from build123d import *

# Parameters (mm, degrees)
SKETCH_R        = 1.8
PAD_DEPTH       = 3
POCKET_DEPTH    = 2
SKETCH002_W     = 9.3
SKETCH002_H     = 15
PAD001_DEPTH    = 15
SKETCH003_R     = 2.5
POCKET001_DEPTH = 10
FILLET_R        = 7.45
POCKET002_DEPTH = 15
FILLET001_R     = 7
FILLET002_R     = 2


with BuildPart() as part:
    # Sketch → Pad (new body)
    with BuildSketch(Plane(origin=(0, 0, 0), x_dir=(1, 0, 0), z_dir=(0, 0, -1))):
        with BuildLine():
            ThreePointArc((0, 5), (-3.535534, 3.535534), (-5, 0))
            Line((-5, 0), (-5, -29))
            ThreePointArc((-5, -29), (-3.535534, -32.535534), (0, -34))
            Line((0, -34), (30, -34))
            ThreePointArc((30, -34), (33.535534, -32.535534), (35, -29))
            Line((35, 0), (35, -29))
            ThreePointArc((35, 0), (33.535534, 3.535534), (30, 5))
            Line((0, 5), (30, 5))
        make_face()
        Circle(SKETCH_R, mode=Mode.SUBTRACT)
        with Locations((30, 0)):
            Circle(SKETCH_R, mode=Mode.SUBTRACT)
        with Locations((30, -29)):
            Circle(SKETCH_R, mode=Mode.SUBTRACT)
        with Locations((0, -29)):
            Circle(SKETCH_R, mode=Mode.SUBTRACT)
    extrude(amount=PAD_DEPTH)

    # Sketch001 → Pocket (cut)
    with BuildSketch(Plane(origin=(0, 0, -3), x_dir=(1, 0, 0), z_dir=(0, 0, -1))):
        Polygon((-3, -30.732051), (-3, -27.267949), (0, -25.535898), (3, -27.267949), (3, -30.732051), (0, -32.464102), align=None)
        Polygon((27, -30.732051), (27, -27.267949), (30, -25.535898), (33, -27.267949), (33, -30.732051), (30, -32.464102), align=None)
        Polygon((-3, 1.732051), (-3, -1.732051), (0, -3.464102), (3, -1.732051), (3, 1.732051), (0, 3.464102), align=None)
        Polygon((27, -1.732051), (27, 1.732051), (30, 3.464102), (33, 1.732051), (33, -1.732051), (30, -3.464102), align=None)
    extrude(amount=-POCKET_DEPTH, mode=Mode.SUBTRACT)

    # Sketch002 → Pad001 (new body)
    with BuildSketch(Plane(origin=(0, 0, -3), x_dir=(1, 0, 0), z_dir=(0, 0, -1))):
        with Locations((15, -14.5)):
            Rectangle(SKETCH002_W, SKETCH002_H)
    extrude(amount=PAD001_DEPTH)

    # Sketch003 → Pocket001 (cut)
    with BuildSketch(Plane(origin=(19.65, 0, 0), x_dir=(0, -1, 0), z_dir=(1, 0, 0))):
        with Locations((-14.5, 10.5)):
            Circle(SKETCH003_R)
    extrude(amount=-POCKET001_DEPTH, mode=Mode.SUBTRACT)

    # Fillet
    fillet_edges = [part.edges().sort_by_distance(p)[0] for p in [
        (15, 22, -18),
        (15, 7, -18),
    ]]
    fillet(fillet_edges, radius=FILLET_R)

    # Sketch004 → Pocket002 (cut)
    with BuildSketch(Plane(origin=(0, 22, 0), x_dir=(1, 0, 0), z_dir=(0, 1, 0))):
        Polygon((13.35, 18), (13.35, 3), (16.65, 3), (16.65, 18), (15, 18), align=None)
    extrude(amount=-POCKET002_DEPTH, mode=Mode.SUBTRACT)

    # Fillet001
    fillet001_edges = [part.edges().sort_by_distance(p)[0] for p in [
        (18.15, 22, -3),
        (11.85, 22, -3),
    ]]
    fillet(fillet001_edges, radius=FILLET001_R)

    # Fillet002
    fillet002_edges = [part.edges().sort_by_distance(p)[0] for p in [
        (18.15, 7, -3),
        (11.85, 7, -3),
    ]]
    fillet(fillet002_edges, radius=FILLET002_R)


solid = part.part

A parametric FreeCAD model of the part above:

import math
import FreeCAD as App
import Part
import Sketcher
Q = App.Units.Quantity


def edges_at(feature, points):
    """Names of the edges that pass closest to the given points."""
    edges = feature.Shape.Edges
    near = lambda p: min(range(len(edges)), key=lambda i: edges[i].distToShape(Part.Vertex(*p))[0])
    return sorted({f"Edge{near(p) + 1}" for p in points})


def add_polygon(sketch, points):
    """Adds a closed chain of lines whose ends are joined by coincident constraints."""
    first, n = sketch.GeometryCount, len(points)
    for a, b in zip(points, points[1:] + points[:1]):
        sketch.addGeometry(Part.LineSegment(App.Vector(*a, 0), App.Vector(*b, 0)), False)
    for i in range(n):
        sketch.addConstraint(Sketcher.Constraint("Coincident", first + i, 2, first + (i + 1) % n, 1))

doc = App.newDocument("Part")
params = doc.addObject("Spreadsheet::Sheet", "Params")
for row, (alias, value) in enumerate([
    ("sketch1_radius", "5 mm"),
    ("sketch1_diameter", "3.6 mm"),
    ("sketch1_width", "30 mm"),
    ("sketch1_height", "29 mm"),
    ("pad1_length", "3 mm"),
    ("pocket1_length", "2 mm"),
    ("sketch3_height", "15 mm"),
    ("sketch3_width", "9.3 mm"),
    ("pad2_length", "15 mm"),
    ("sketch4_diameter", "5 mm"),
    ("pocket2_length", "10 mm"),
    ("fillet_radius", "7.45 mm"),
    ("sketch5_height", "15 mm"),
    ("sketch5_width", "3.3 mm"),
    ("pocket3_length", "15 mm"),
    ("fillet2_radius", "7 mm"),
    ("fillet3_radius", "2 mm"),
], start=1):
    params.set(f"A{row}", alias)
    params.set(f"B{row}", "=" + value)
    params.setAlias(f"B{row}", alias)

body = doc.addObject("PartDesign::Body", "Body")

sketch1 = body.newObject("Sketcher::SketchObject", "Sketch")
sketch1.AttachmentSupport = (doc.getObject("XY_Plane"), [""])
sketch1.MapMode = "FlatFace"
sketch1.addGeometry([
    Part.ArcOfCircle(Part.Circle(App.Vector(0, 0, 0), App.Vector(0, 0, 1), 5), math.radians(179.999996), math.radians(270.000004)),
    Part.LineSegment(App.Vector(-5, 0, 0), App.Vector(-5, 29, 0)),
    Part.ArcOfCircle(Part.Circle(App.Vector(0, 29, 0), App.Vector(0, 0, 1), 5), math.radians(89.999996), math.radians(180.000004)),
    Part.LineSegment(App.Vector(0, 34, 0), App.Vector(30, 34, 0)),
    Part.ArcOfCircle(Part.Circle(App.Vector(30, 29, 0), App.Vector(0, 0, 1), 5), math.radians(-0.000004), math.radians(90.000004)),
    Part.LineSegment(App.Vector(35, 29, 0), App.Vector(35, 0, 0)),
    Part.ArcOfCircle(Part.Circle(App.Vector(30, 0, 0), App.Vector(0, 0, 1), 5), math.radians(-90.000004), math.radians(0.000004)),
    Part.LineSegment(App.Vector(30, -5, 0), App.Vector(0, -5, 0)),
    Part.Circle(App.Vector(0, 29, 0), App.Vector(0, 0, 1), 1.8),
    Part.Circle(App.Vector(30, 29, 0), App.Vector(0, 0, 1), 1.8),
    Part.Circle(App.Vector(0, 0, 0), App.Vector(0, 0, 1), 1.8),
    Part.Circle(App.Vector(30, 0, 0), App.Vector(0, 0, 1), 1.8),
], False)
sketch1.addConstraint([
    Sketcher.Constraint("Tangent", 0, 1, 1, 1),
    Sketcher.Constraint("Tangent", 1, 2, 2, 2),
    Sketcher.Constraint("Tangent", 2, 1, 3, 1),
    Sketcher.Constraint("Tangent", 3, 2, 4, 2),
    Sketcher.Constraint("Tangent", 4, 1, 5, 1),
    Sketcher.Constraint("Tangent", 5, 2, 6, 2),
    Sketcher.Constraint("Tangent", 6, 1, 7, 1),
    Sketcher.Constraint("Tangent", 7, 2, 0, 2),
    Sketcher.Constraint("Vertical", 1),
    Sketcher.Constraint("Horizontal", 3),
    Sketcher.Constraint("Vertical", 5),
    Sketcher.Constraint("Horizontal", 7),
    Sketcher.Constraint("Coincident", 0, 3, -1, 1),
    Sketcher.Constraint("Coincident", 10, 3, -1, 1),
    Sketcher.Constraint("Coincident", 8, 3, 2, 3),
    Sketcher.Constraint("Coincident", 9, 3, 4, 3),
    Sketcher.Constraint("Coincident", 11, 3, 6, 3),
    Sketcher.Constraint("Equal", 0, 2),
    Sketcher.Constraint("Equal", 2, 4),
    Sketcher.Constraint("Equal", 4, 6),
    Sketcher.Constraint("Equal", 8, 9),
    Sketcher.Constraint("Equal", 9, 10),
    Sketcher.Constraint("Equal", 10, 11),
    Sketcher.Constraint("Radius", 0, 5.0),
    Sketcher.Constraint("Diameter", 8, 3.6),
    Sketcher.Constraint("DistanceX", 3, 1, 3, 2, 30.0),
    Sketcher.Constraint("DistanceY", 1, 1, 1, 2, 29.0),
])
sketch1.setExpression("Constraints[23]", "Params.sketch1_radius")
sketch1.setExpression("Constraints[24]", "Params.sketch1_diameter")
sketch1.setExpression("Constraints[25]", "Params.sketch1_width")
sketch1.setExpression("Constraints[26]", "Params.sketch1_height")
pad1 = body.newObject("PartDesign::Pad", "Pad")
pad1.Profile = sketch1
pad1.setExpression("Length", "Params.pad1_length")
pad1.Reversed = True

sketch2 = body.newObject("Sketcher::SketchObject", "Sketch001")
sketch2.AttachmentSupport = (doc.getObject("XY_Plane"), [""])
sketch2.MapMode = "FlatFace"
sketch2.AttachmentOffset = App.Placement(App.Vector(0, 0, -3), App.Rotation())
add_polygon(sketch2, [(-3, 27.267949), (-3, 30.732051), (0, 32.464102), (3, 30.732051), (3, 27.267949), (0, 25.535898)])
add_polygon(sketch2, [(27, 27.267949), (27, 30.732051), (30, 32.464102), (33, 30.732051), (33, 27.267949), (30, 25.535898)])
add_polygon(sketch2, [(-3, -1.732051), (-3, 1.732051), (0, 3.464102), (3, 1.732051), (3, -1.732051), (0, -3.464102)])
add_polygon(sketch2, [(27, -1.732051), (27, 1.732051), (30, 3.464102), (33, 1.732051), (33, -1.732051), (30, -3.464102)])
sketch2.addConstraint([
    Sketcher.Constraint("Vertical", 0),
    Sketcher.Constraint("Vertical", 3),
    Sketcher.Constraint("Vertical", 6),
    Sketcher.Constraint("Vertical", 9),
    Sketcher.Constraint("Vertical", 12),
    Sketcher.Constraint("Vertical", 15),
    Sketcher.Constraint("Vertical", 18),
    Sketcher.Constraint("Vertical", 21),
    Sketcher.Constraint("Symmetric", 12, 2, 15, 2, -1, 1),
    Sketcher.Constraint("Symmetric", 13, 2, 16, 2, -1, 1),
    Sketcher.Constraint("Symmetric", 0, 2, 2, 2, -2),
    Sketcher.Constraint("Symmetric", 19, 2, 22, 2, -1),
    Sketcher.Constraint("PointOnObject", 1, 2, -2),
    Sketcher.Constraint("PointOnObject", 4, 2, -2),
    Sketcher.Constraint("PointOnObject", 13, 2, -2),
    Sketcher.Constraint("Parallel", 1, 4),
    Sketcher.Constraint("Parallel", 2, 5),
    Sketcher.Constraint("Parallel", 4, 7),
    Sketcher.Constraint("Parallel", 5, 8),
    Sketcher.Constraint("Parallel", 7, 10),
    Sketcher.Constraint("Parallel", 8, 11),
    Sketcher.Constraint("Parallel", 10, 13),
    Sketcher.Constraint("Parallel", 11, 14),
    Sketcher.Constraint("Parallel", 14, 17),
    Sketcher.Constraint("Parallel", 16, 19),
    Sketcher.Constraint("Parallel", 17, 20),
    Sketcher.Constraint("Parallel", 19, 22),
    Sketcher.Constraint("Parallel", 20, 23),
    Sketcher.Constraint("Horizontal", 2, 2, 6, 2),
    Sketcher.Constraint("Horizontal", 1, 2, 7, 2),
    Sketcher.Constraint("Horizontal", 6, 2, 8, 2),
    Sketcher.Constraint("Horizontal", 5, 2, 9, 2),
    Sketcher.Constraint("Horizontal", 4, 2, 10, 2),
    Sketcher.Constraint("Horizontal", 14, 2, 18, 2),
    Sketcher.Constraint("Horizontal", 13, 2, 19, 2),
    Sketcher.Constraint("Horizontal", 18, 2, 20, 2),
    Sketcher.Constraint("Vertical", 5, 2, 12, 2),
    Sketcher.Constraint("Vertical", 11, 2, 18, 2),
    Sketcher.Constraint("Equal", 9, 12),
    Sketcher.Constraint("Angle", 1, Q("30.000003 deg")),
    Sketcher.Constraint("DistanceX", 0, 2, -1, 1, 3.0),
    Sketcher.Constraint("DistanceX", -1, 1, 6, 2, 27.0),
    Sketcher.Constraint("DistanceY", 12, 2, 0, 2, 29.0),
    Sketcher.Constraint("DistanceY", 0, 1, 0, 2, 3.464102),
])
pocket1 = body.newObject("PartDesign::Pocket", "Pocket")
pocket1.Profile = sketch2
pocket1.setExpression("Length", "Params.pocket1_length")
pocket1.Reversed = True

sketch3 = body.newObject("Sketcher::SketchObject", "Sketch002")
sketch3.AttachmentSupport = (doc.getObject("XY_Plane"), [""])
sketch3.MapMode = "FlatFace"
sketch3.AttachmentOffset = App.Placement(App.Vector(0, 0, -3), App.Rotation())
add_polygon(sketch3, [(10.35, 7), (10.35, 22), (19.65, 22), (19.65, 7)])
sketch3.addConstraint([
    Sketcher.Constraint("Vertical", 0),
    Sketcher.Constraint("Horizontal", 1),
    Sketcher.Constraint("Vertical", 2),
    Sketcher.Constraint("Horizontal", 3),
    Sketcher.Constraint("DistanceY", 0, 1, 0, 2, 15.0),
    Sketcher.Constraint("DistanceX", 1, 1, 1, 2, 9.3),
    Sketcher.Constraint("DistanceY", -1, 1, 0, 2, 22.0),
    Sketcher.Constraint("DistanceX", -1, 1, 0, 2, 10.35),
])
sketch3.setExpression("Constraints[8]", "Params.sketch3_height")
sketch3.setExpression("Constraints[9]", "Params.sketch3_width")
pad2 = body.newObject("PartDesign::Pad", "Pad001")
pad2.Profile = sketch3
pad2.setExpression("Length", "Params.pad2_length")
pad2.Reversed = True

sketch4 = body.newObject("Sketcher::SketchObject", "Sketch003")
sketch4.AttachmentSupport = (doc.getObject("YZ_Plane"), [""])
sketch4.MapMode = "FlatFace"
sketch4.AttachmentOffset = App.Placement(App.Vector(0, 0, 19.65), App.Rotation())
sketch4.addGeometry(Part.Circle(App.Vector(14.5, -10.5, 0), App.Vector(0, 0, 1), 2.5), False)
sketch4.addConstraint([
    Sketcher.Constraint("Diameter", 0, 5.0),
    Sketcher.Constraint("DistanceX", -1, 1, 0, 3, 14.5),
    Sketcher.Constraint("DistanceY", 0, 3, -1, 1, 10.5),
])
sketch4.setExpression("Constraints[0]", "Params.sketch4_diameter")
pocket2 = body.newObject("PartDesign::Pocket", "Pocket001")
pocket2.Profile = sketch4
pocket2.setExpression("Length", "Params.pocket2_length")
doc.recompute()

fillet = body.newObject("PartDesign::Fillet", "Fillet")
fillet.Base = (pocket2, edges_at(pocket2, [(15, 22, -18), (15, 7, -18)]))
fillet.setExpression("Radius", "Params.fillet_radius")

sketch5 = body.newObject("Sketcher::SketchObject", "Sketch004")
sketch5.AttachmentSupport = (doc.getObject("XZ_Plane"), [""])
sketch5.MapMode = "FlatFace"
sketch5.AttachmentOffset = App.Placement(App.Vector(0, 0, -22), App.Rotation())
add_polygon(sketch5, [(13.35, -18), (13.35, -3), (16.65, -3), (16.65, -18)])
sketch5.addConstraint([
    Sketcher.Constraint("Vertical", 0),
    Sketcher.Constraint("Horizontal", 1),
    Sketcher.Constraint("Vertical", 2),
    Sketcher.Constraint("Horizontal", 3),
    Sketcher.Constraint("DistanceY", 0, 1, 0, 2, 15.0),
    Sketcher.Constraint("DistanceX", 1, 1, 1, 2, 3.3),
    Sketcher.Constraint("DistanceY", 0, 2, -1, 1, 3.0),
    Sketcher.Constraint("DistanceX", -1, 1, 0, 2, 13.35),
])
sketch5.setExpression("Constraints[8]", "Params.sketch5_height")
sketch5.setExpression("Constraints[9]", "Params.sketch5_width")
pocket3 = body.newObject("PartDesign::Pocket", "Pocket002")
pocket3.Profile = sketch5
pocket3.setExpression("Length", "Params.pocket3_length")
pocket3.Reversed = True
doc.recompute()

fillet2 = body.newObject("PartDesign::Fillet", "Fillet001")
fillet2.Base = (pocket3, edges_at(pocket3, [(18.15, 22, -3), (11.85, 22, -3)]))
fillet2.setExpression("Radius", "Params.fillet2_radius")
doc.recompute()

fillet3 = body.newObject("PartDesign::Fillet", "Fillet002")
fillet3.Base = (fillet2, edges_at(fillet2, [(18.15, 7, -3), (11.85, 7, -3)]))
fillet3.setExpression("Radius", "Params.fillet3_radius")

doc.recompute()
